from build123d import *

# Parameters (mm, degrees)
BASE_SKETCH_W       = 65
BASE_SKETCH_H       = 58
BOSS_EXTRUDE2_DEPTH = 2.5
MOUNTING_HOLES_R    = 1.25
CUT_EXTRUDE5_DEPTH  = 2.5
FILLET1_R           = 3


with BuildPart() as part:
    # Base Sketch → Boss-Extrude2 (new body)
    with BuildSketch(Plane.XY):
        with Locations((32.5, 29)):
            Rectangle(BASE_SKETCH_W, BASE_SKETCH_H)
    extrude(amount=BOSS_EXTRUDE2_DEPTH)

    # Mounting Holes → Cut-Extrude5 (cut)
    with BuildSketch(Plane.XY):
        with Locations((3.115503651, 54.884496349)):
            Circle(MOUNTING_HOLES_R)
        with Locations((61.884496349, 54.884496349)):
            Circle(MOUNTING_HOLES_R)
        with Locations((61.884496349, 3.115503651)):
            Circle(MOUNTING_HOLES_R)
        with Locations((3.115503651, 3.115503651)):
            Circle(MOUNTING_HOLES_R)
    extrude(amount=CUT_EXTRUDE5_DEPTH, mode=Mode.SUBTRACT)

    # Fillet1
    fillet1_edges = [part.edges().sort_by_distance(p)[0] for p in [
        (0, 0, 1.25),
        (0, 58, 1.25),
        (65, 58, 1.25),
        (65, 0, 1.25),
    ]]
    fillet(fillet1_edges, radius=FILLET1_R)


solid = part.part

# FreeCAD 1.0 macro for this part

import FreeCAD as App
import Part
import Sketcher
Q = App.Units.Quantity


def edges_at(feature, points):
    """Names of the edges that pass closest to the given points."""
    edges = feature.Shape.Edges
    near = lambda p: min(range(len(edges)), key=lambda i: edges[i].distToShape(Part.Vertex(*p))[0])
    return sorted({f"Edge{near(p) + 1}" for p in points})

doc = App.newDocument("Part")
body = doc.addObject("PartDesign::Body", "Body")

# Sketch on XY plane
sketch1 = body.newObject("Sketcher::SketchObject", "Sketch")
sketch1.AttachmentSupport = (doc.getObject("XY_Plane"), [""])
sketch1.MapMode = "FlatFace"
sketch1.addGeometry(Part.LineSegment(App.Vector(0, 58, 0), App.Vector(0, 0, 0)), False)
sketch1.addGeometry(Part.LineSegment(App.Vector(0, 0, 0), App.Vector(65, 0, 0)), False)
sketch1.addGeometry(Part.LineSegment(App.Vector(65, 0, 0), App.Vector(65, 58, 0)), False)
sketch1.addGeometry(Part.LineSegment(App.Vector(65, 58, 0), App.Vector(0, 58, 0)), False)
sketch1.addConstraint(Sketcher.Constraint("Coincident", 0, 2, 1, 1))
sketch1.addConstraint(Sketcher.Constraint("Coincident", 1, 2, 2, 1))
sketch1.addConstraint(Sketcher.Constraint("Coincident", 2, 2, 3, 1))
sketch1.addConstraint(Sketcher.Constraint("Coincident", 3, 2, 0, 1))
sketch1.addConstraint(Sketcher.Constraint("Vertical", 0))
sketch1.addConstraint(Sketcher.Constraint("Horizontal", 1))
sketch1.addConstraint(Sketcher.Constraint("Vertical", 2))
sketch1.addConstraint(Sketcher.Constraint("Horizontal", 3))
sketch1.addConstraint(Sketcher.Constraint("Coincident", 0, 2, -1, 1))
sketch1.addConstraint(Sketcher.Constraint("DistanceX", 1, 1, 1, 2, Q("65 mm")))
sketch1.addConstraint(Sketcher.Constraint("DistanceY", 0, 2, 0, 1, Q("58 mm")))
pad1 = body.newObject("PartDesign::Pad", "Pad")
pad1.Profile = sketch1
pad1.Length = 2.5

# Sketch on XY plane
sketch2 = body.newObject("Sketcher::SketchObject", "Sketch001")
sketch2.AttachmentSupport = (doc.getObject("XY_Plane"), [""])
sketch2.MapMode = "FlatFace"
sketch2.addGeometry(Part.Circle(App.Vector(3.1, 54.9, 0), App.Vector(0, 0, 1), 1.2), False)
sketch2.addGeometry(Part.Circle(App.Vector(61.9, 54.9, 0), App.Vector(0, 0, 1), 1.2), False)
sketch2.addGeometry(Part.Circle(App.Vector(61.9, 3.1, 0), App.Vector(0, 0, 1), 1.2), False)
sketch2.addGeometry(Part.Circle(App.Vector(3.1, 3.1, 0), App.Vector(0, 0, 1), 1.2), False)
sketch2.addConstraint(Sketcher.Constraint("Equal", 0, 1))
sketch2.addConstraint(Sketcher.Constraint("Equal", 1, 2))
sketch2.addConstraint(Sketcher.Constraint("Equal", 2, 3))
sketch2.addConstraint(Sketcher.Constraint("Horizontal", 0, 3, 1, 3))
sketch2.addConstraint(Sketcher.Constraint("Horizontal", 2, 3, 3, 3))
sketch2.addConstraint(Sketcher.Constraint("Vertical", 1, 3, 2, 3))
sketch2.addConstraint(Sketcher.Constraint("Vertical", 0, 3, 3, 3))
sketch2.addConstraint(Sketcher.Constraint("Diameter", 0, Q("2.5 mm")))
sketch2.addConstraint(Sketcher.Constraint("DistanceX", -1, 1, 0, 3, Q("3.115504 mm")))
sketch2.addConstraint(Sketcher.Constraint("DistanceY", -1, 1, 0, 3, Q("54.884496 mm")))
sketch2.addConstraint(Sketcher.Constraint("DistanceX", -1, 1, 1, 3, Q("61.884496 mm")))
sketch2.addConstraint(Sketcher.Constraint("DistanceY", -1, 1, 2, 3, Q("3.115504 mm")))
pocket1 = body.newObject("PartDesign::Pocket", "Pocket")
pocket1.Profile = sketch2
pocket1.Length = 2.5
pocket1.Reversed = True
doc.recompute()

fillet = body.newObject("PartDesign::Fillet", "Fillet")
fillet.Base = (pocket1, edges_at(pocket1, [
    (0, 0, 1.25),
    (0, 58, 1.25),
    (65, 58, 1.25),
    (65, 0, 1.25),
]))
fillet.Radius = 3

doc.recompute()
